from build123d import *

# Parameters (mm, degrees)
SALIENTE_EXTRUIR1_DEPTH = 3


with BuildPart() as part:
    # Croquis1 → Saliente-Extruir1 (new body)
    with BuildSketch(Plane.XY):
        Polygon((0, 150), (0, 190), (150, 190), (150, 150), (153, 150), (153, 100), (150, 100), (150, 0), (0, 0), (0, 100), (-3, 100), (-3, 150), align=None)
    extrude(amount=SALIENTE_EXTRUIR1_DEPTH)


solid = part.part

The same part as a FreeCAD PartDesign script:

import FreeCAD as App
import Part
import Sketcher

V = App.Vector


def add_polygon(sketch, points):
    """Adds a closed chain of lines whose ends are joined by coincident constraints."""
    first, n = sketch.GeometryCount, len(points)
    for a, b in zip(points, points[1:] + points[:1]):
        sketch.addGeometry(Part.LineSegment(App.Vector(*a, 0), App.Vector(*b, 0)), False)
    for i in range(n):
        sketch.addConstraint(Sketcher.Constraint("Coincident", first + i, 2, first + (i + 1) % n, 1))

doc = App.newDocument("Part")
body = doc.addObject("PartDesign::Body", "Body")

# Sketch on XY plane
sketch1 = body.newObject("Sketcher::SketchObject", "Sketch")
sketch1.AttachmentSupport = (doc.getObject("XY_Plane"), [""])
sketch1.MapMode = "FlatFace"
add_polygon(sketch1, [(0, 190), (0, 150), (-3, 150), (-3, 100), (0, 100), (0, 0), (150, 0), (150, 100), (153, 100), (153, 150), (150, 150), (150, 190)])  # lines 0-11
sketch1.addConstraint([
    Sketcher.Constraint("Vertical", 0),
    Sketcher.Constraint("Horizontal", 1),
    Sketcher.Constraint("Vertical", 2),
    Sketcher.Constraint("Horizontal", 3),
    Sketcher.Constraint("Vertical", 4),
    Sketcher.Constraint("Horizontal", 5),
    Sketcher.Constraint("Vertical", 6),
    Sketcher.Constraint("Horizontal", 7),
    Sketcher.Constraint("Vertical", 8),
    Sketcher.Constraint("Horizontal", 9),
    Sketcher.Constraint("Vertical", 10),
    Sketcher.Constraint("Horizontal", 11),
    Sketcher.Constraint("Coincident", 4, 2, -1, 1),
    Sketcher.Constraint("PointOnObject", 0, 2, -2),
    Sketcher.Constraint("Horizontal", 3, 2, 6, 2),
    Sketcher.Constraint("Horizontal", 1, 2, 8, 2),
    Sketcher.Constraint("Vertical", 6, 2, 9, 2),
    Sketcher.Constraint("Equal", 3, 7),
    Sketcher.Constraint("DistanceX", 1, 2, 1, 1, 3.0),
    Sketcher.Constraint("DistanceX", 5, 1, 5, 2, 150.0),
    Sketcher.Constraint("DistanceY", 0, 2, 0, 1, 40.0),
    Sketcher.Constraint("DistanceY", 2, 2, 2, 1, 50.0),
    Sketcher.Constraint("DistanceY", 4, 2, 4, 1, 100.0),
])
pad1 = body.newObject("PartDesign::Pad", "Pad")
pad1.Profile = sketch1
pad1.Length = 3

doc.recompute()
